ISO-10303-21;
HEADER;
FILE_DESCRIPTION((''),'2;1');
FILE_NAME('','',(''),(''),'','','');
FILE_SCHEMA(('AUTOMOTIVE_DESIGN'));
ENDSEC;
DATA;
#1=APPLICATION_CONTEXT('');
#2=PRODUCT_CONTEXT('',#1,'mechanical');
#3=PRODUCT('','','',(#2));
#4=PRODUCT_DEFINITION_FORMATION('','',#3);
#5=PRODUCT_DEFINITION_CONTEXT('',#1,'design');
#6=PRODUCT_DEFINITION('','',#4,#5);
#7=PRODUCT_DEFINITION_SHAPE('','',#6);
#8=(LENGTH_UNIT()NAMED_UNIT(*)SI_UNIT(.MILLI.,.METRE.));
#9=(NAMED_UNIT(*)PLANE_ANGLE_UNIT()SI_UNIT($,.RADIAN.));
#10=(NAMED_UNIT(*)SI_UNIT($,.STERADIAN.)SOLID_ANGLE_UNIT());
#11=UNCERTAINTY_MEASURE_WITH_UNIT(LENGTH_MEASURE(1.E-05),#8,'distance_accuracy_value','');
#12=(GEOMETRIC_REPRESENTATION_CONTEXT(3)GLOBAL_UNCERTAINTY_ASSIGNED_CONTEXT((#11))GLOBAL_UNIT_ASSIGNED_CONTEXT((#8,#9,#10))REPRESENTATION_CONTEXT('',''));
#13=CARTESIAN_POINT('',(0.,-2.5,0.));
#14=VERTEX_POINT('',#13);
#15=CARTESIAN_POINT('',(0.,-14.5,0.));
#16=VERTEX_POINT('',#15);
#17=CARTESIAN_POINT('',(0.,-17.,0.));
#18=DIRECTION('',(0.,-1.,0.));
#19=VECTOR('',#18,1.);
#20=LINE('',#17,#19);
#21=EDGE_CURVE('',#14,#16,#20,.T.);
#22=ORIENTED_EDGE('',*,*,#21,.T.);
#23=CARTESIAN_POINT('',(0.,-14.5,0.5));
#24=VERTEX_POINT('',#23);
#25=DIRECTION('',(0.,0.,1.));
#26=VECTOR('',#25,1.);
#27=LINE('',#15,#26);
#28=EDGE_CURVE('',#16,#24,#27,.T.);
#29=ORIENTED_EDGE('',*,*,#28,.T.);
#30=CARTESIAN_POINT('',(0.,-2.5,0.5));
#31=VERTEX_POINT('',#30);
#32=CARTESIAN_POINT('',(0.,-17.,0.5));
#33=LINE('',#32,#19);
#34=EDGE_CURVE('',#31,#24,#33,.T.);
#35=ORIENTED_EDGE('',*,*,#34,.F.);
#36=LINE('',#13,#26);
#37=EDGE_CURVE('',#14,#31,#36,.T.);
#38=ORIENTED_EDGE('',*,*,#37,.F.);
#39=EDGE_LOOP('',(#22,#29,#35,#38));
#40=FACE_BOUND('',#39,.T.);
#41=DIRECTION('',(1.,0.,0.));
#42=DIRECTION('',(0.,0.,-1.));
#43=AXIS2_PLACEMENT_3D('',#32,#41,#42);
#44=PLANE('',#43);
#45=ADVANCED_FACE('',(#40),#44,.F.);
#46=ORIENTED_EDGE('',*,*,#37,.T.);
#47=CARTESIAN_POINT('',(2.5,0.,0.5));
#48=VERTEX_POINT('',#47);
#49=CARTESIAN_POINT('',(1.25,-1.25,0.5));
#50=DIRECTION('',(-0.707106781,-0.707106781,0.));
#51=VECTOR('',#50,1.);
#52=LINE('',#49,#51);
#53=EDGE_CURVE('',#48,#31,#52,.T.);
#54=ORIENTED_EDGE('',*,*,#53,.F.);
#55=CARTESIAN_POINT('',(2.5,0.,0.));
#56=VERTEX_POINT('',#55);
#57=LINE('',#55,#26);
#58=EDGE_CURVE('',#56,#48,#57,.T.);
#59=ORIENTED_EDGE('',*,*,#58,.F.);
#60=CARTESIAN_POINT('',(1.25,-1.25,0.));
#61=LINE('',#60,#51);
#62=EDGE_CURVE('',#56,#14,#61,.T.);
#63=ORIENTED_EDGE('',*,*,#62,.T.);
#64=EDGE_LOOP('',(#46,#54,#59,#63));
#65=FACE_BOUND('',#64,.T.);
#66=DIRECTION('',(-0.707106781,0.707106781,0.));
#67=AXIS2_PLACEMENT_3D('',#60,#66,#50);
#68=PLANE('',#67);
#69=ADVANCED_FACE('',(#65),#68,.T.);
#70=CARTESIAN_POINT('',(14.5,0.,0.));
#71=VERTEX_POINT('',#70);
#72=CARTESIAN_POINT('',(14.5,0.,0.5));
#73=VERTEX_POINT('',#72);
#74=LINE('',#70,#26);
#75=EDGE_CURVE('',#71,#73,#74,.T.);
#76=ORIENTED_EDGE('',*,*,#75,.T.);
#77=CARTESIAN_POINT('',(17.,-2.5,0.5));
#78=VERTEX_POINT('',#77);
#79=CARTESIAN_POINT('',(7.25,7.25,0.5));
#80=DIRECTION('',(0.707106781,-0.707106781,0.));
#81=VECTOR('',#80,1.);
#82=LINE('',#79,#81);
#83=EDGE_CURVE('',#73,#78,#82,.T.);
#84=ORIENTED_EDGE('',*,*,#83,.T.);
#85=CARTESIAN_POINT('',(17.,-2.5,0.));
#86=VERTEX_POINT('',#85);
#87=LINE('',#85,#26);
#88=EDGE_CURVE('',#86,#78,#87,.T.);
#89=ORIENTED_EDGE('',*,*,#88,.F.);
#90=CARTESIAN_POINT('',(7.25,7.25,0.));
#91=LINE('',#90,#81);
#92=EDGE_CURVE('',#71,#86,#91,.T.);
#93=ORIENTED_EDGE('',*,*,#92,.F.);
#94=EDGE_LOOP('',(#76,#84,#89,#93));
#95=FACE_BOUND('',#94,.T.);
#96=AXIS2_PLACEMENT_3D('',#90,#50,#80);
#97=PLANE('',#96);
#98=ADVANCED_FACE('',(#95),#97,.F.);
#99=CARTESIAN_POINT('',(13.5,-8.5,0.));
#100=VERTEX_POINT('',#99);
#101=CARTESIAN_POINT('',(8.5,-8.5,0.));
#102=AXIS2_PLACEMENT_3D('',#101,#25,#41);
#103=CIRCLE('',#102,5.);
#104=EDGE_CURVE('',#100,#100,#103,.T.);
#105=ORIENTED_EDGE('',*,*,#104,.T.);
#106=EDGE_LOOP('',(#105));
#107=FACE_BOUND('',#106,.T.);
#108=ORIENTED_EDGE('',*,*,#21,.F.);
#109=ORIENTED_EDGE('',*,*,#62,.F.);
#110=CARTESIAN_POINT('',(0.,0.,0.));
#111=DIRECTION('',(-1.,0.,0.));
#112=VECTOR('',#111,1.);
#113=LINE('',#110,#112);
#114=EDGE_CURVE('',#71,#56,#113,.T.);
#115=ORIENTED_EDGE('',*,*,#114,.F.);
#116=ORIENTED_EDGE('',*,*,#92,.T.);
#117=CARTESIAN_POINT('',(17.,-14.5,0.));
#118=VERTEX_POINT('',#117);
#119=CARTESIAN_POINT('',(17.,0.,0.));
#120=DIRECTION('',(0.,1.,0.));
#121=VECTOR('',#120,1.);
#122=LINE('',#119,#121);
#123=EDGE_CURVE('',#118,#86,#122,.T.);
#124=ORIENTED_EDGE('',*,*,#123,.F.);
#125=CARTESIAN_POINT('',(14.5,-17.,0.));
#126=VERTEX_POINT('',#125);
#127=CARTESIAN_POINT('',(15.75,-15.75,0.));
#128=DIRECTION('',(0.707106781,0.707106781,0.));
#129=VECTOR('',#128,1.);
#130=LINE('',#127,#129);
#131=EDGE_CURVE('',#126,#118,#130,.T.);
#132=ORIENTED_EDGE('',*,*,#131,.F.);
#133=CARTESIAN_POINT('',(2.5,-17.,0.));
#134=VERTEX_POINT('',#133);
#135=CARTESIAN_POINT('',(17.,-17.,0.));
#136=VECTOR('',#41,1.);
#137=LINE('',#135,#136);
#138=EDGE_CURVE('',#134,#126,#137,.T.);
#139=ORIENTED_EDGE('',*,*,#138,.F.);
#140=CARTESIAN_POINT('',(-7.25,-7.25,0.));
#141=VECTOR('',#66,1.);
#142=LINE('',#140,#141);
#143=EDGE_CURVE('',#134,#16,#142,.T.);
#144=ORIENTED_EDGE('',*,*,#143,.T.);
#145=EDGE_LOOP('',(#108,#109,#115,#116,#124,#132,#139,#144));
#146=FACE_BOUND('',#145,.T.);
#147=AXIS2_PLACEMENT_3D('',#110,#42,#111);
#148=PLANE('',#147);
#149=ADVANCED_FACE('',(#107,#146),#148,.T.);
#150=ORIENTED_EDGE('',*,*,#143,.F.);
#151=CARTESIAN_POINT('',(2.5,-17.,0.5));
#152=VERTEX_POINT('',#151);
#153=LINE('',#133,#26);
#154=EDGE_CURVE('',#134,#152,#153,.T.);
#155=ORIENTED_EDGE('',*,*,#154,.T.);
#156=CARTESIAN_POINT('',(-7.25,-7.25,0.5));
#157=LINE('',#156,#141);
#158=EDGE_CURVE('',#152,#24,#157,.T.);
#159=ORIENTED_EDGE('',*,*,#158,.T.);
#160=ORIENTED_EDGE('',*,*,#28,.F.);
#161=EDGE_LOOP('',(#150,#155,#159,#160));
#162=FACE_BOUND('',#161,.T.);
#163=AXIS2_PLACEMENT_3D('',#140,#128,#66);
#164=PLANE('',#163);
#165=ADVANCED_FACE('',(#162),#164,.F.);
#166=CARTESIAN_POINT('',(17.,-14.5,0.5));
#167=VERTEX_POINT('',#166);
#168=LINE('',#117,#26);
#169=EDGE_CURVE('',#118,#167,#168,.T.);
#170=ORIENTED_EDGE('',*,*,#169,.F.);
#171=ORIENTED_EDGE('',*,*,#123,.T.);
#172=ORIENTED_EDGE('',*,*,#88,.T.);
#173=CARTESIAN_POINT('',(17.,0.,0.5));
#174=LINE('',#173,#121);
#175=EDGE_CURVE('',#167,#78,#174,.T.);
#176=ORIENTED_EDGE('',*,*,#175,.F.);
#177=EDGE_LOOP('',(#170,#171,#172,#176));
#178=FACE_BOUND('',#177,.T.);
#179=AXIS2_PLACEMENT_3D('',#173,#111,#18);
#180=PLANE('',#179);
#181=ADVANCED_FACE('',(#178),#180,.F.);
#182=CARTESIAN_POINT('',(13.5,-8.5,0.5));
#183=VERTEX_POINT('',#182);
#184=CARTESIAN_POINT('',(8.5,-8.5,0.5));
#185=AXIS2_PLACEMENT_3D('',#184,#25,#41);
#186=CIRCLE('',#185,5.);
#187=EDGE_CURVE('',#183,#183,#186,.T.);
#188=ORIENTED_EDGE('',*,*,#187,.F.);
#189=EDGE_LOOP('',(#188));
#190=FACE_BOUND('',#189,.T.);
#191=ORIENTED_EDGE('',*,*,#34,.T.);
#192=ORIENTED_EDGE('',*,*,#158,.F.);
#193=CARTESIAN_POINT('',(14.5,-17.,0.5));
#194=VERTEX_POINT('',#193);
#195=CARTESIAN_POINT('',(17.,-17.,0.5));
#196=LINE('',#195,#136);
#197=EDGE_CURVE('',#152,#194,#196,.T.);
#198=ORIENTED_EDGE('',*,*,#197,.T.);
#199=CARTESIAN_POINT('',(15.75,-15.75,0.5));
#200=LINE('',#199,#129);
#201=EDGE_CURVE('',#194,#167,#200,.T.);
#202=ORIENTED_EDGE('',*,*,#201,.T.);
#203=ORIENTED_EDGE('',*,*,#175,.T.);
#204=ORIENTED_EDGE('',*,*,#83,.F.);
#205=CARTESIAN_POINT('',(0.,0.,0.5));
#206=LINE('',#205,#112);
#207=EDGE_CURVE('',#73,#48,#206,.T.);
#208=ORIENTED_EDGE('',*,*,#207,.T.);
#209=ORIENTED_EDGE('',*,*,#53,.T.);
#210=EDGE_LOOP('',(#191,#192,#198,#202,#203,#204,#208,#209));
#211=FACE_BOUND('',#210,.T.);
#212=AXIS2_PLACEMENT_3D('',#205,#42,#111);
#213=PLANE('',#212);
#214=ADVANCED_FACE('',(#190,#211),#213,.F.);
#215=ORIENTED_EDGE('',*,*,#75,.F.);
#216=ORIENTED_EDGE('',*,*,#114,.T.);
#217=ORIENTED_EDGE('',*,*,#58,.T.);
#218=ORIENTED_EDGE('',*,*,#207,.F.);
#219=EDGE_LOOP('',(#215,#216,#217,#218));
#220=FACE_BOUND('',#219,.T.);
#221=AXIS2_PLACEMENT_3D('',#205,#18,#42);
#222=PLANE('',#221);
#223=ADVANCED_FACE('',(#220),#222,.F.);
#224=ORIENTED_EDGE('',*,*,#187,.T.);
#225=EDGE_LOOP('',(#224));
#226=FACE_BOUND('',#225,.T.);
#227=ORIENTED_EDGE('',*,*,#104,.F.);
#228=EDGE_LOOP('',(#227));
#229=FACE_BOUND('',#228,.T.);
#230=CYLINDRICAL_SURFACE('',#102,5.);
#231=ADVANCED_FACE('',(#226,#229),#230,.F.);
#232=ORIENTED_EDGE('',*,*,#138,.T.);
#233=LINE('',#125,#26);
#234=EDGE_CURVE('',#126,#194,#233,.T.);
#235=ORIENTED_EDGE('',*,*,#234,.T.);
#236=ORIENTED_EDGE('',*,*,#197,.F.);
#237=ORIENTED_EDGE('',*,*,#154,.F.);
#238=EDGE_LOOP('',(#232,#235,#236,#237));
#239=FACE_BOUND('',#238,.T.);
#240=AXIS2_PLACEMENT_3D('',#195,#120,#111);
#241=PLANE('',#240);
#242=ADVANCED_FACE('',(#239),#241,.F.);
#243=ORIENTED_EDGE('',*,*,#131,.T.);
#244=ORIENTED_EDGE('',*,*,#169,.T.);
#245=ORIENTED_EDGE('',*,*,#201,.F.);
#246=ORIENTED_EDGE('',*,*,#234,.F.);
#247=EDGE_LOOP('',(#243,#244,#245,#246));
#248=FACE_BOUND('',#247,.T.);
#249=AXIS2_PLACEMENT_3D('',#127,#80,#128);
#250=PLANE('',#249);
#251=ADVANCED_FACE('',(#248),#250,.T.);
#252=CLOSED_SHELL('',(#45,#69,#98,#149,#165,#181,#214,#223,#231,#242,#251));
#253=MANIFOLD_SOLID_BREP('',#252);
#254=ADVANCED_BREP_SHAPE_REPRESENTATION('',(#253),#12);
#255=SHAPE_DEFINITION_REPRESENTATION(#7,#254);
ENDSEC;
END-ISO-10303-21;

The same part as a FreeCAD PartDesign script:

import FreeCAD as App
import Part
import Sketcher

V = App.Vector
Q = App.Units.Quantity

doc = App.newDocument("Part")
params = doc.addObject("Spreadsheet::Sheet", "Params")
for row, (alias, value) in enumerate([
    ("sketch1_width", "17 mm"),
    ("pad1_length", "0.5 mm"),
    ("sketch2_diameter", "10 mm"),
    ("sketch2_width", "2.5 mm"),
], start=1):
    params.set(f"A{row}", alias)
    params.set(f"B{row}", "=" + value)
    params.setAlias(f"B{row}", alias)

body = doc.addObject("PartDesign::Body", "Body")

# Sketch on XY plane
sketch1 = body.newObject("Sketcher::SketchObject", "Sketch")
sketch1.AttachmentSupport = (doc.getObject("XY_Plane"), [""])
sketch1.MapMode = "FlatFace"
sketch1.addGeometry(Part.LineSegment(V(0, 0, 0), V(0, -17, 0)), False)
sketch1.addGeometry(Part.LineSegment(V(0, -17, 0), V(17, -17, 0)), False)
sketch1.addGeometry(Part.LineSegment(V(17, -17, 0), V(17, 0, 0)), False)
sketch1.addGeometry(Part.LineSegment(V(17, 0, 0), V(0, 0, 0)), False)
sketch1.addConstraint(Sketcher.Constraint("Coincident", 0, 2, 1, 1))
sketch1.addConstraint(Sketcher.Constraint("Coincident", 1, 2, 2, 1))
sketch1.addConstraint(Sketcher.Constraint("Coincident", 2, 2, 3, 1))
sketch1.addConstraint(Sketcher.Constraint("Coincident", 3, 2, 0, 1))
sketch1.addConstraint(Sketcher.Constraint("Vertical", 0))
sketch1.addConstraint(Sketcher.Constraint("Horizontal", 1))
sketch1.addConstraint(Sketcher.Constraint("Vertical", 2))
sketch1.addConstraint(Sketcher.Constraint("Horizontal", 3))
sketch1.addConstraint(Sketcher.Constraint("Coincident", 3, 2, -1, 1))
sketch1.addConstraint(Sketcher.Constraint("Equal", 3, 0))
sketch1.addConstraint(Sketcher.Constraint("DistanceX", 1, 1, 1, 2, Q("17 mm")))
sketch1.setExpression("Constraints[10]", "Params.sketch1_width")
pad1 = body.newObject("PartDesign::Pad", "Pad")
pad1.Profile = sketch1
pad1.setExpression("Length", "Params.pad1_length")

# Sketch on XY plane
sketch2 = body.newObject("Sketcher::SketchObject", "Sketch001")
sketch2.AttachmentSupport = (doc.getObject("XY_Plane"), [""])
sketch2.MapMode = "FlatFace"
sketch2.AttachmentOffset = App.Placement(V(0, 0, 0.5), App.Rotation())
sketch2.addGeometry(Part.Circle(V(8.5, -8.5, 0), V(0, 0, 1), 5), False)
sketch2.addGeometry(Part.LineSegment(V(17, 0, 0), V(14.5, 0, 0)), False)
sketch2.addGeometry(Part.LineSegment(V(14.5, 0, 0), V(17, -2.5, 0)), False)
sketch2.addGeometry(Part.LineSegment(V(17, -2.5, 0), V(17, 0, 0)), False)
sketch2.addGeometry(Part.LineSegment(V(0, -2.5, 0), V(2.5, 0, 0)), False)
sketch2.addGeometry(Part.LineSegment(V(2.5, 0, 0), V(0, 0, 0)), False)
sketch2.addGeometry(Part.LineSegment(V(0, 0, 0), V(0, -2.5, 0)), False)
sketch2.addGeometry(Part.LineSegment(V(2.5, -17, 0), V(0, -14.5, 0)), False)
sketch2.addGeometry(Part.LineSegment(V(0, -14.5, 0), V(0, -17, 0)), False)
sketch2.addGeometry(Part.LineSegment(V(0, -17, 0), V(2.5, -17, 0)), False)
sketch2.addGeometry(Part.LineSegment(V(17, -17, 0), V(17, -14.5, 0)), False)
sketch2.addGeometry(Part.LineSegment(V(17, -14.5, 0), V(14.5, -17, 0)), False)
sketch2.addGeometry(Part.LineSegment(V(14.5, -17, 0), V(17, -17, 0)), False)
sketch2.addConstraint(Sketcher.Constraint("Coincident", 1, 2, 2, 1))
sketch2.addConstraint(Sketcher.Constraint("Coincident", 2, 2, 3, 1))
sketch2.addConstraint(Sketcher.Constraint("Coincident", 3, 2, 1, 1))
sketch2.addConstraint(Sketcher.Constraint("Coincident", 4, 2, 5, 1))
sketch2.addConstraint(Sketcher.Constraint("Coincident", 5, 2, 6, 1))
sketch2.addConstraint(Sketcher.Constraint("Coincident", 6, 2, 4, 1))
sketch2.addConstraint(Sketcher.Constraint("Coincident", 7, 2, 8, 1))
sketch2.addConstraint(Sketcher.Constraint("Coincident", 8, 2, 9, 1))
sketch2.addConstraint(Sketcher.Constraint("Coincident", 9, 2, 7, 1))
sketch2.addConstraint(Sketcher.Constraint("Coincident", 10, 2, 11, 1))
sketch2.addConstraint(Sketcher.Constraint("Coincident", 11, 2, 12, 1))
sketch2.addConstraint(Sketcher.Constraint("Coincident", 12, 2, 10, 1))
sketch2.addConstraint(Sketcher.Constraint("Horizontal", 1))
sketch2.addConstraint(Sketcher.Constraint("Vertical", 3))
sketch2.addConstraint(Sketcher.Constraint("Horizontal", 5))
sketch2.addConstraint(Sketcher.Constraint("Vertical", 6))
sketch2.addConstraint(Sketcher.Constraint("Vertical", 8))
sketch2.addConstraint(Sketcher.Constraint("Horizontal", 9))
sketch2.addConstraint(Sketcher.Constraint("Vertical", 10))
sketch2.addConstraint(Sketcher.Constraint("Horizontal", 12))
sketch2.addConstraint(Sketcher.Constraint("Coincident", 5, 2, -1, 1))
sketch2.addConstraint(Sketcher.Constraint("PointOnObject", 1, 2, -1))
sketch2.addConstraint(Sketcher.Constraint("PointOnObject", 7, 2, -2))
sketch2.addConstraint(Sketcher.Constraint("Perpendicular", 2, 4))
sketch2.addConstraint(Sketcher.Constraint("Perpendicular", 4, 7))
sketch2.addConstraint(Sketcher.Constraint("Perpendicular", 7, 11))
sketch2.addConstraint(Sketcher.Constraint("Horizontal", 2, 2, 6, 2))
sketch2.addConstraint(Sketcher.Constraint("Horizontal", 7, 2, 10, 2))
sketch2.addConstraint(Sketcher.Constraint("Horizontal", 9, 2, 11, 2))
sketch2.addConstraint(Sketcher.Constraint("Vertical", 4, 2, 9, 2))
sketch2.addConstraint(Sketcher.Constraint("Vertical", 3, 2, 10, 2))
sketch2.addConstraint(Sketcher.Constraint("Vertical", 1, 2, 11, 2))
sketch2.addConstraint(Sketcher.Constraint("Diameter", 0, Q("10 mm")))
sketch2.addConstraint(Sketcher.Constraint("DistanceX", 1, 2, 1, 1, Q("2.5 mm")))
sketch2.addConstraint(Sketcher.Constraint("DistanceX", -1, 1, 2, 2, Q("17 mm")))
sketch2.addConstraint(Sketcher.Constraint("DistanceY", 8, 2, -1, 1, Q("17 mm")))
sketch2.addConstraint(Sketcher.Constraint("DistanceX", 0, 3, 1, 2, Q("6 mm")))
sketch2.addConstraint(Sketcher.Constraint("DistanceY", 0, 3, 2, 2, Q("6 mm")))
sketch2.setExpression("Constraints[32]", "Params.sketch2_diameter")
sketch2.setExpression("Constraints[33]", "Params.sketch2_width")
pocket1 = body.newObject("PartDesign::Pocket", "Pocket")
pocket1.Profile = sketch2
pocket1.Type = "ThroughAll"

doc.recompute()
